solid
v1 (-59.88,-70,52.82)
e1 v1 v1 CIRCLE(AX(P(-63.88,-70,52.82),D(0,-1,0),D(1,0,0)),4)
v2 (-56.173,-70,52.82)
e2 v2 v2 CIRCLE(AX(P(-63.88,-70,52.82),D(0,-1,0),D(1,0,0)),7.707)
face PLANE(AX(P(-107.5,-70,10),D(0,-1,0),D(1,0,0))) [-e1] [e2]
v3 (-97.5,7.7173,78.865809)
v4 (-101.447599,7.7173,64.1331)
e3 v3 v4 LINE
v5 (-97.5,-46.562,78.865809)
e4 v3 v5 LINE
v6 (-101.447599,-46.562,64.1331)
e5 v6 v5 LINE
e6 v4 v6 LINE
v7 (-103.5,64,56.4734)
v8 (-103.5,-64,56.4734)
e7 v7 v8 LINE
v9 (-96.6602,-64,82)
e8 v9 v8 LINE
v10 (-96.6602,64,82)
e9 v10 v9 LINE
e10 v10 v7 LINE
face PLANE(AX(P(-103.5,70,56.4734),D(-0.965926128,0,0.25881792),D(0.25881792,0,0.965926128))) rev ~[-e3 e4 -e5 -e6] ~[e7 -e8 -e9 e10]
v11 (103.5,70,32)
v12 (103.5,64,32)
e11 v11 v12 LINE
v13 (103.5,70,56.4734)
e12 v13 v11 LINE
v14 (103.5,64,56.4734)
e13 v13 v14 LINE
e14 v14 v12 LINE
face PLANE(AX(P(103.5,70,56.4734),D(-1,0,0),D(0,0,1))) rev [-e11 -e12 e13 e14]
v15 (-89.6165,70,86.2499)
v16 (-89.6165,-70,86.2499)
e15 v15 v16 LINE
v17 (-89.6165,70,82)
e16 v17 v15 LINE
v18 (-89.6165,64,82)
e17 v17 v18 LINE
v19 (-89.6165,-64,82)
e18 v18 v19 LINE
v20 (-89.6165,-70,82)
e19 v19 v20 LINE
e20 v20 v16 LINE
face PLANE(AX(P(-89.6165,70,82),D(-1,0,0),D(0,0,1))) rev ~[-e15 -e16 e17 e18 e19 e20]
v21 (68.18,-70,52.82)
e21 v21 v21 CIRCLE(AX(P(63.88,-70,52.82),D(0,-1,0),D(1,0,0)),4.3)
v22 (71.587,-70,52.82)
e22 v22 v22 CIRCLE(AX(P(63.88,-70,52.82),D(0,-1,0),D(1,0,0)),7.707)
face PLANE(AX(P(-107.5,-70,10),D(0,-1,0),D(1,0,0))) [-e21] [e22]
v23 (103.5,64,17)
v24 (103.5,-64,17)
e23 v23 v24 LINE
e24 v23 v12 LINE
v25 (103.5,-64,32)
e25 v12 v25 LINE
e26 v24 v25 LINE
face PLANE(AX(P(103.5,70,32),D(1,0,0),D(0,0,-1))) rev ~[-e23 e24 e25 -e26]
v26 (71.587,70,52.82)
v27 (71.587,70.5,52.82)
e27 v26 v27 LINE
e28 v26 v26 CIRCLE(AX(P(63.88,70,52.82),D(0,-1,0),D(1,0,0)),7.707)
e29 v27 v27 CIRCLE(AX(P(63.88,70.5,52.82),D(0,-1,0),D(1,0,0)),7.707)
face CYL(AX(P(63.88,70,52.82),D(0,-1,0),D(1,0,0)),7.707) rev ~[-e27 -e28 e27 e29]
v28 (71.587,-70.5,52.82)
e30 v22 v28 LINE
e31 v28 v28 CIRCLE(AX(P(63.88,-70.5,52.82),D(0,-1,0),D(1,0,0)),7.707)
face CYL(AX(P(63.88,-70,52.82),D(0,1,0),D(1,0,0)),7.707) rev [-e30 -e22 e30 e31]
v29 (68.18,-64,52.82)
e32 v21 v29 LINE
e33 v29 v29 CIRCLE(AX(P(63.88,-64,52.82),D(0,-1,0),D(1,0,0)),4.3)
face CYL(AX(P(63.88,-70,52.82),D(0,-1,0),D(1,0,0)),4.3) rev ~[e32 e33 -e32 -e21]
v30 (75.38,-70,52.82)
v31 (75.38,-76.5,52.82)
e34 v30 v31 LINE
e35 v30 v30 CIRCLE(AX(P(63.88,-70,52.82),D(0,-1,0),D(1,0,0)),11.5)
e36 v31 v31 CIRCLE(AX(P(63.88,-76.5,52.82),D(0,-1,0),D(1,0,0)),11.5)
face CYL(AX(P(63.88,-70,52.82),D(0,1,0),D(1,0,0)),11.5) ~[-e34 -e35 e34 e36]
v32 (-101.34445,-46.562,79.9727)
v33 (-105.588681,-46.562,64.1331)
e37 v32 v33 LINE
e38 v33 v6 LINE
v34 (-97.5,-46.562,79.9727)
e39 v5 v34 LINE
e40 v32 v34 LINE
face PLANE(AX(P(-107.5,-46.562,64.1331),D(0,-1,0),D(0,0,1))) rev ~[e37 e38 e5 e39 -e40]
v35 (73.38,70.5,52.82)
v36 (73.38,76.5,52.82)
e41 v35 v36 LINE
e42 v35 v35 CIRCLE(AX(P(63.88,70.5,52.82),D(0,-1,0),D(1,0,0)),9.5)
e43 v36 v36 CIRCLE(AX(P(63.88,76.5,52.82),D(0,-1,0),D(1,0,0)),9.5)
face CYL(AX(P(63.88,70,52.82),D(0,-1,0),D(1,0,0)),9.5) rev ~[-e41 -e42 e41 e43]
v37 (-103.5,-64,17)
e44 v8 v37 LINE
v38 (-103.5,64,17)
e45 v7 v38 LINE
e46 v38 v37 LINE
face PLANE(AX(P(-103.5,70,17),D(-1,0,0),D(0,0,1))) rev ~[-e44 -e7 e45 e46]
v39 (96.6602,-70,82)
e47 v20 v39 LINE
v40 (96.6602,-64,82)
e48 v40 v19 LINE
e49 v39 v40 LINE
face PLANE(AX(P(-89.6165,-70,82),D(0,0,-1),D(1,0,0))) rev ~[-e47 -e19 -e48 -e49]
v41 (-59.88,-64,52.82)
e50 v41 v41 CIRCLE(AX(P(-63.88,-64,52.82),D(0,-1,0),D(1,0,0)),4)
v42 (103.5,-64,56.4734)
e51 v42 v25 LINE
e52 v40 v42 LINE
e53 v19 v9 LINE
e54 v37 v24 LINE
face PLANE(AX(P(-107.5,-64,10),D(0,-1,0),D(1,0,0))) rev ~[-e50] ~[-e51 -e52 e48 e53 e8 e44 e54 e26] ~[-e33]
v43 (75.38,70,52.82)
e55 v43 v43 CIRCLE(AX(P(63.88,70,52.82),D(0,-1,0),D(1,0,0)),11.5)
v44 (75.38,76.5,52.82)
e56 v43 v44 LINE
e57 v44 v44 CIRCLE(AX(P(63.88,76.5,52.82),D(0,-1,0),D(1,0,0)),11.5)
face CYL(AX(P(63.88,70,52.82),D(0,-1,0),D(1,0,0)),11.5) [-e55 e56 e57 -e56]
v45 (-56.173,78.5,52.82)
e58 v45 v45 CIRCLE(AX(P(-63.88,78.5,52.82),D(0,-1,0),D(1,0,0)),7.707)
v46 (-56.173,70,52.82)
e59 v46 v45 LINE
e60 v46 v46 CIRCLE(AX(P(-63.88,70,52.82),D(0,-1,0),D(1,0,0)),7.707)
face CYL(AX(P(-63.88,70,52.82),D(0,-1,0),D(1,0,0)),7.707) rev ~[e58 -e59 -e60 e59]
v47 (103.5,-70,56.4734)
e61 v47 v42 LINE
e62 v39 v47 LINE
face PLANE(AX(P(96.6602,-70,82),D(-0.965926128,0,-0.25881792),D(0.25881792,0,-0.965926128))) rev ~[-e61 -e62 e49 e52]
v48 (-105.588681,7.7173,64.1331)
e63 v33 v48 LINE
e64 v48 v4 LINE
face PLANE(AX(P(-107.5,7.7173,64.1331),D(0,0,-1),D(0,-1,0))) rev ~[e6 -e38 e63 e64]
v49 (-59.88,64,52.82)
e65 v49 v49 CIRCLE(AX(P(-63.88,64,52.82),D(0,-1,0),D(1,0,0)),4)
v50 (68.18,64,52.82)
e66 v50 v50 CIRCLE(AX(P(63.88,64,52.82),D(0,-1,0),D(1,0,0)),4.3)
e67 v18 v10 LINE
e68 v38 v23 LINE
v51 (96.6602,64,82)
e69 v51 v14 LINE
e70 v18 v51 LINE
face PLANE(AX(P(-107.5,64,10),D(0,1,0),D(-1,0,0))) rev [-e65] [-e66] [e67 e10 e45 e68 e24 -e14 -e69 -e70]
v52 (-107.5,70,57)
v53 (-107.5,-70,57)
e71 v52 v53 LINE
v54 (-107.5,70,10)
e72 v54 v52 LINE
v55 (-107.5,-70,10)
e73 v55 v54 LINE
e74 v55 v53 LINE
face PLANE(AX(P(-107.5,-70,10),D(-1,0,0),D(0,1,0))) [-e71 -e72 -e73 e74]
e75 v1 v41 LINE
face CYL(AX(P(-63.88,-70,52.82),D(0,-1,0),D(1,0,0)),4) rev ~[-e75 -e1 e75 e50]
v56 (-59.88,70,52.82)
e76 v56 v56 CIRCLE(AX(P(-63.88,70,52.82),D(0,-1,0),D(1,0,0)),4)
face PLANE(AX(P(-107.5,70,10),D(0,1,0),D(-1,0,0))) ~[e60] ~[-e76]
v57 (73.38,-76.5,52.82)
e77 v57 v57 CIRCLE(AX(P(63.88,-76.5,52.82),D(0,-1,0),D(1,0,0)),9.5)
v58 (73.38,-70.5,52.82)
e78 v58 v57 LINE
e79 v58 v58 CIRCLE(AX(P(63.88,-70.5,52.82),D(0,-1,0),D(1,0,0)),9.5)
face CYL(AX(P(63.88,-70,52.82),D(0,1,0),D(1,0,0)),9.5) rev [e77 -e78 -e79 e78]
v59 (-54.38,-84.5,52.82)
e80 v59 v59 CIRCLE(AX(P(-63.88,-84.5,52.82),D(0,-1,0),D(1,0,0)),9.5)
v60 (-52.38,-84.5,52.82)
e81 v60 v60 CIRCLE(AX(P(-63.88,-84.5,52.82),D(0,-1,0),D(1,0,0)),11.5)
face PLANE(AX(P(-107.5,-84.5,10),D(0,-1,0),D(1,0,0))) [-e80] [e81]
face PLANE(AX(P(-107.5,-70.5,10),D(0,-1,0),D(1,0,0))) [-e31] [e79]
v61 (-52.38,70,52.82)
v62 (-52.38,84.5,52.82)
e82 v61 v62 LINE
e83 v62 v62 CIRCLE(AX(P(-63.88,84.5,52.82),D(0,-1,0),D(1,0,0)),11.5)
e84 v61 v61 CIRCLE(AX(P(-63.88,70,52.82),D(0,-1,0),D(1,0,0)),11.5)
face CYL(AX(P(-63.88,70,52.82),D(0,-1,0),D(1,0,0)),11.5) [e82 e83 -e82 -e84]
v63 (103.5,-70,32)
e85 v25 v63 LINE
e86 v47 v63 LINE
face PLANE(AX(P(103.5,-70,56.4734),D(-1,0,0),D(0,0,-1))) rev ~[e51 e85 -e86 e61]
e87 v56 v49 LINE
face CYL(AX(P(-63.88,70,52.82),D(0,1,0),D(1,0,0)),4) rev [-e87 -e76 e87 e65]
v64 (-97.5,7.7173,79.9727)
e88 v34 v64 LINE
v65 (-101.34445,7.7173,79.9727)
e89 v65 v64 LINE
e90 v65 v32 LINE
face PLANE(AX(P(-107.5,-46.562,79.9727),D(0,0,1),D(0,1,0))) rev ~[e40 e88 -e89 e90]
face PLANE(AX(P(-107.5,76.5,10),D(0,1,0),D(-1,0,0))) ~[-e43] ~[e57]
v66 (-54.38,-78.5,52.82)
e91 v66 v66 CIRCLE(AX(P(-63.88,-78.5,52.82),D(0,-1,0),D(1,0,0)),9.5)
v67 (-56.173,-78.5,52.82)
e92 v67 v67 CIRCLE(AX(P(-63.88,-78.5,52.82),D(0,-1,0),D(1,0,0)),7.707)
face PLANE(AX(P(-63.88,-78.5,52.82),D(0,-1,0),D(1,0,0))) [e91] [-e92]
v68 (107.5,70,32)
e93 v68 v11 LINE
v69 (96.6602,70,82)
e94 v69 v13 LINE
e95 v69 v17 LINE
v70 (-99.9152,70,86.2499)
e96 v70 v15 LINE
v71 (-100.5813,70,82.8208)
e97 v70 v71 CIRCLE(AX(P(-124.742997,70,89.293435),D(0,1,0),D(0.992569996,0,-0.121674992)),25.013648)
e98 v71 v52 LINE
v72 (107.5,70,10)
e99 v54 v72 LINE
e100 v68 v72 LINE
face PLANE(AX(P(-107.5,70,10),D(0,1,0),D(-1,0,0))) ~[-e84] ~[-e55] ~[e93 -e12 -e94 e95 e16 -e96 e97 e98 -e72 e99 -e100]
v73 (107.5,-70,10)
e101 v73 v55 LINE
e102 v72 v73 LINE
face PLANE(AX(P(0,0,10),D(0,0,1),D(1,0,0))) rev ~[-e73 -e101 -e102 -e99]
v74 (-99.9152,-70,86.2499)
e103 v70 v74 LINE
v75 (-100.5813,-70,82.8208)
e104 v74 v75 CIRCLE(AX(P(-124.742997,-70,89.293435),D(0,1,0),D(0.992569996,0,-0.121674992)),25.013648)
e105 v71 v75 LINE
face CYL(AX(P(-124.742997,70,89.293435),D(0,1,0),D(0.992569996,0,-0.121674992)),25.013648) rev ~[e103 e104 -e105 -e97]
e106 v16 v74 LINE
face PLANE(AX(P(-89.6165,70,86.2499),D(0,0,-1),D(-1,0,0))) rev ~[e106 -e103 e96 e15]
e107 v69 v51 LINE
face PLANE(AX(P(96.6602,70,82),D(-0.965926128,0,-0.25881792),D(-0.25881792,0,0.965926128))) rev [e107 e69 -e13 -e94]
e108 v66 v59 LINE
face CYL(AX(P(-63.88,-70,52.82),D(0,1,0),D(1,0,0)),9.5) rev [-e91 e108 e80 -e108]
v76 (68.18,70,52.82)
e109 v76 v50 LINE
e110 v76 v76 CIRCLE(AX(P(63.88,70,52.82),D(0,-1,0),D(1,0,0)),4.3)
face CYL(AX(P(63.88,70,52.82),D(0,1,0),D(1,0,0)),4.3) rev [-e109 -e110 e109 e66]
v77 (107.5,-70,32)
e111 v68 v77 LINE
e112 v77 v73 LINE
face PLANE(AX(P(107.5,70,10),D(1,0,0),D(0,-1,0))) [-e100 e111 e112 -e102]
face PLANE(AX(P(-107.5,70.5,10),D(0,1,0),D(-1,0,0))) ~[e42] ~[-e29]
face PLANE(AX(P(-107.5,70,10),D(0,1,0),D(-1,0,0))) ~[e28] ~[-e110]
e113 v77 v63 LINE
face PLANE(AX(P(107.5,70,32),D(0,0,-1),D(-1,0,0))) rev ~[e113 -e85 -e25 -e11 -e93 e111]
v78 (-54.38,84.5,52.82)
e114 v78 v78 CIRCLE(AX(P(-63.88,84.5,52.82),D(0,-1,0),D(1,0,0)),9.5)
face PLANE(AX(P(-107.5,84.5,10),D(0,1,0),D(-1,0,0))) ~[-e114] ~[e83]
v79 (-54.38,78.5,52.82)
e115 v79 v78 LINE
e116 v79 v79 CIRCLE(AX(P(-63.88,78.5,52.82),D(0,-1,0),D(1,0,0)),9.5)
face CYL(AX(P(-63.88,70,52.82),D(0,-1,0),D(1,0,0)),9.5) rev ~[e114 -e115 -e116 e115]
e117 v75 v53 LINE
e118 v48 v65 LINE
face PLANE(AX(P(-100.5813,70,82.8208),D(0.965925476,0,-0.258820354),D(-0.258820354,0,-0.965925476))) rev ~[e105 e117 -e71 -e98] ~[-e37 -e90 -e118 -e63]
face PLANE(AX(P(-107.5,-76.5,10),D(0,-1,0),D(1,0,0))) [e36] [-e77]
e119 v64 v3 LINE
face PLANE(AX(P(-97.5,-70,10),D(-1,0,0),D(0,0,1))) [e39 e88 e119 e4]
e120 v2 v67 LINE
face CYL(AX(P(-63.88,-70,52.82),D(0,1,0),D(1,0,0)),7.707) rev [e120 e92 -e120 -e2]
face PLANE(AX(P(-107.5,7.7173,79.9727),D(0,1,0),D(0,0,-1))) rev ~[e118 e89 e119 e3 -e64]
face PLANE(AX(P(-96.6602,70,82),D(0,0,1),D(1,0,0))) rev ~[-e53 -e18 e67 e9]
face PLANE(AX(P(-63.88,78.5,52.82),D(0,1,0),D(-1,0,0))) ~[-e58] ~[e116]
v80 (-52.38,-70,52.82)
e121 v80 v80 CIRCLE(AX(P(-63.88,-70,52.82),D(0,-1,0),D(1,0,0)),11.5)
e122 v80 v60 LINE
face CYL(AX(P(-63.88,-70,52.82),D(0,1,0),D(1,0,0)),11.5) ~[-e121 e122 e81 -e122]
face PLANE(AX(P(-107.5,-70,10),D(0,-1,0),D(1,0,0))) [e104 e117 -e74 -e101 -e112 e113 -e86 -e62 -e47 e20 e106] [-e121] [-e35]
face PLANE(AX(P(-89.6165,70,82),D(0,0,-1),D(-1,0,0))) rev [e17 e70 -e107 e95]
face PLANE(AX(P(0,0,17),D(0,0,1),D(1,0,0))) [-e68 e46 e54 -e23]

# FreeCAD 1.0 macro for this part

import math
import FreeCAD as App
import Part
import Sketcher

V = App.Vector
Q = App.Units.Quantity


def add_polygon(sketch, points):
    """Adds a closed chain of lines whose ends are joined by coincident constraints."""
    first, n = sketch.GeometryCount, len(points)
    for a, b in zip(points, points[1:] + points[:1]):
        sketch.addGeometry(Part.LineSegment(App.Vector(*a, 0), App.Vector(*b, 0)), False)
    for i in range(n):
        sketch.addConstraint(Sketcher.Constraint("Coincident", first + i, 2, first + (i + 1) % n, 1))

doc = App.newDocument("Part")
body = doc.addObject("PartDesign::Body", "Body")

sketch1 = doc.addObject("Sketcher::SketchObject", "Sketch")
body.addObject(sketch1)
sketch1.AttachmentSupport = (doc.XY_Plane, [""])
sketch1.MapMode = "FlatFace"
sketch1.AttachmentOffset = App.Placement(V(0, 0, 10), App.Rotation())
add_polygon(sketch1, [(107.5, 70), (-107.5, 70), (-107.5, -70), (107.5, -70)])
sketch1.addConstraint(Sketcher.Constraint("Horizontal", 0))
sketch1.addConstraint(Sketcher.Constraint("Vertical", 1))
sketch1.addConstraint(Sketcher.Constraint("Horizontal", 2))
sketch1.addConstraint(Sketcher.Constraint("Vertical", 3))
sketch1.addConstraint(Sketcher.Constraint("Symmetric", 0, 2, 2, 2, -1, 1))
sketch1.addConstraint(Sketcher.Constraint("DistanceX", 0, 2, 0, 1, Q("215 mm")))
sketch1.addConstraint(Sketcher.Constraint("DistanceY", 1, 2, 1, 1, Q("140 mm")))
pad1 = doc.addObject("PartDesign::Pad", "Pad")
body.addObject(pad1)
pad1.Profile = sketch1
pad1.Length = 7

sketch2 = doc.addObject("Sketcher::SketchObject", "Sketch001")
body.addObject(sketch2)
sketch2.AttachmentSupport = (doc.XZ_Plane, [""])
sketch2.MapMode = "FlatFace"
sketch2.AttachmentOffset = App.Placement(V(0, 0, -70), App.Rotation())
add_polygon(sketch2, [(107.5, 32), (107.5, 17), (103.5, 17), (103.5, 32)])
sketch2.addGeometry(Part.LineSegment(V(-103.5, 17, 0), V(-107.5, 17, 0)), False)
sketch2.addGeometry(Part.LineSegment(V(-107.5, 17, 0), V(-107.5, 57, 0)), False)
sketch2.addGeometry(Part.LineSegment(V(-107.5, 57, 0), V(-100.5813, 82.8208, 0)), False)
sketch2.addGeometry(Part.ArcOfCircle(Part.Circle(V(-124.742997, 89.293435, 0), V(0, 0, 1), 25.013648), math.radians(-14.996744), math.radians(-6.988781)), False)
sketch2.addGeometry(Part.LineSegment(V(-99.9152, 86.2499, 0), V(-89.6165, 86.2499, 0)), False)
sketch2.addGeometry(Part.LineSegment(V(-89.6165, 86.2499, 0), V(-89.6165, 82, 0)), False)
sketch2.addGeometry(Part.LineSegment(V(-89.6165, 82, 0), V(-96.6602, 82, 0)), False)
sketch2.addGeometry(Part.LineSegment(V(-96.6602, 82, 0), V(-103.5, 56.4734, 0)), False)
sketch2.addGeometry(Part.LineSegment(V(-103.5, 56.4734, 0), V(-103.5, 17, 0)), False)
sketch2.addConstraint(Sketcher.Constraint("Coincident", 4, 2, 5, 1))
sketch2.addConstraint(Sketcher.Constraint("Coincident", 5, 2, 6, 1))
sketch2.addConstraint(Sketcher.Constraint("Tangent", 6, 2, 7, 1))
sketch2.addConstraint(Sketcher.Constraint("Coincident", 7, 2, 8, 1))
sketch2.addConstraint(Sketcher.Constraint("Coincident", 8, 2, 9, 1))
sketch2.addConstraint(Sketcher.Constraint("Coincident", 9, 2, 10, 1))
sketch2.addConstraint(Sketcher.Constraint("Coincident", 10, 2, 11, 1))
sketch2.addConstraint(Sketcher.Constraint("Coincident", 11, 2, 12, 1))
sketch2.addConstraint(Sketcher.Constraint("Coincident", 12, 2, 4, 1))
sketch2.addConstraint(Sketcher.Constraint("Vertical", 0))
sketch2.addConstraint(Sketcher.Constraint("Horizontal", 1))
sketch2.addConstraint(Sketcher.Constraint("Vertical", 2))
sketch2.addConstraint(Sketcher.Constraint("Horizontal", 3))
sketch2.addConstraint(Sketcher.Constraint("Horizontal", 4))
sketch2.addConstraint(Sketcher.Constraint("Vertical", 5))
sketch2.addConstraint(Sketcher.Constraint("Horizontal", 8))
sketch2.addConstraint(Sketcher.Constraint("Vertical", 9))
sketch2.addConstraint(Sketcher.Constraint("Horizontal", 10))
sketch2.addConstraint(Sketcher.Constraint("Vertical", 12))
sketch2.addConstraint(Sketcher.Constraint("Symmetric", 0, 2, 4, 2, -2))
sketch2.addConstraint(Sketcher.Constraint("Parallel", 6, 11))
sketch2.addConstraint(Sketcher.Constraint("Equal", 3, 4))
sketch2.addConstraint(Sketcher.Constraint("DistanceX", 1, 2, 1, 1, Q("4 mm")))
sketch2.addConstraint(Sketcher.Constraint("DistanceY", 0, 2, 0, 1, Q("15 mm")))
sketch2.addConstraint(Sketcher.Constraint("DistanceY", 5, 1, 5, 2, Q("40 mm")))
sketch2.addConstraint(Sketcher.Constraint("Angle", 6, Q("75 deg")))
sketch2.addConstraint(Sketcher.Constraint("DistanceY", -1, 1, 0, 2, Q("17 mm")))
sketch2.addConstraint(Sketcher.Constraint("DistanceY", -1, 1, 9, 2, Q("82 mm")))
sketch2.addConstraint(Sketcher.Constraint("DistanceX", 4, 2, 1, 2, Q("211 mm")))
sketch2.addConstraint(Sketcher.Constraint("DistanceY", 9, 2, 9, 1, Q("4.25 mm")))
sketch2.addConstraint(Sketcher.Constraint("Radius", 7, Q("25.0136 mm")))
sketch2.addConstraint(Sketcher.Constraint("Distance", 11, Q("26.427 mm")))
sketch2.addConstraint(Sketcher.Constraint("DistanceX", 8, 1, 8, 2, Q("10.2987 mm")))
sketch2.addConstraint(Sketcher.Constraint("DistanceX", 10, 2, 10, 1, Q("7.0437 mm")))
pad2 = doc.addObject("PartDesign::Pad", "Pad001")
body.addObject(pad2)
pad2.Profile = sketch2
pad2.Length = 140

sketch3 = doc.addObject("Sketcher::SketchObject", "Sketch002")
body.addObject(sketch3)
sketch3.AttachmentSupport = (doc.XZ_Plane, [""])
sketch3.MapMode = "FlatFace"
sketch3.AttachmentOffset = App.Placement(V(0, 0, 70), App.Rotation())
add_polygon(sketch3, [(103.5, 17), (103.5, 56.4734), (96.6602, 82), (-96.6602, 82), (-103.5, 56.4734), (-103.5, 17)])
sketch3.addGeometry(Part.Circle(V(-63.88, 52.82, 0), V(0, 0, 1), 4), False)
sketch3.addGeometry(Part.Circle(V(63.88, 52.82, 0), V(0, 0, 1), 4.3), False)
sketch3.addConstraint(Sketcher.Constraint("Vertical", 0))
sketch3.addConstraint(Sketcher.Constraint("Horizontal", 2))
sketch3.addConstraint(Sketcher.Constraint("Vertical", 4))
sketch3.addConstraint(Sketcher.Constraint("Horizontal", 5))
sketch3.addConstraint(Sketcher.Constraint("Symmetric", 6, 3, 7, 3, -2))
sketch3.addConstraint(Sketcher.Constraint("Symmetric", 0, 2, 3, 2, -2))
sketch3.addConstraint(Sketcher.Constraint("Equal", 1, 3))
sketch3.addConstraint(Sketcher.Constraint("Diameter", 6, Q("8 mm")))
sketch3.addConstraint(Sketcher.Constraint("Diameter", 7, Q("8.6 mm")))
sketch3.addConstraint(Sketcher.Constraint("DistanceX", 5, 1, 5, 2, Q("207 mm")))
sketch3.addConstraint(Sketcher.Constraint("Angle", 1, Q("105 deg")))
sketch3.addConstraint(Sketcher.Constraint("DistanceY", -1, 1, 1, 2, Q("82 mm")))
sketch3.addConstraint(Sketcher.Constraint("DistanceY", -1, 1, 4, 2, Q("17 mm")))
sketch3.addConstraint(Sketcher.Constraint("DistanceX", 6, 3, -1, 1, Q("63.88 mm")))
sketch3.addConstraint(Sketcher.Constraint("DistanceY", -1, 1, 6, 3, Q("52.82 mm")))
sketch3.addConstraint(Sketcher.Constraint("Distance", 1, Q("26.427 mm")))
pad3 = doc.addObject("PartDesign::Pad", "Pad002")
body.addObject(pad3)
pad3.Profile = sketch3
pad3.Length = 6
pad3.Reversed = True

sketch4 = doc.addObject("Sketcher::SketchObject", "Sketch003")
body.addObject(sketch4)
sketch4.AttachmentSupport = (doc.XZ_Plane, [""])
sketch4.MapMode = "FlatFace"
sketch4.AttachmentOffset = App.Placement(V(0, 0, 70), App.Rotation())
sketch4.addGeometry(Part.Circle(V(-63.88, 52.82, 0), V(0, 0, 1), 11.5), False)
sketch4.addGeometry(Part.Circle(V(-63.88, 52.82, 0), V(0, 0, 1), 9.5), False)
sketch4.addConstraint(Sketcher.Constraint("Coincident", 1, 3, 0, 3))
sketch4.addConstraint(Sketcher.Constraint("Diameter", 0, Q("23 mm")))
sketch4.addConstraint(Sketcher.Constraint("Diameter", 1, Q("19 mm")))
sketch4.addConstraint(Sketcher.Constraint("DistanceX", 0, 3, -1, 1, Q("63.88 mm")))
sketch4.addConstraint(Sketcher.Constraint("DistanceY", -1, 1, 0, 3, Q("52.82 mm")))
pad4 = doc.addObject("PartDesign::Pad", "Pad003")
body.addObject(pad4)
pad4.Profile = sketch4
pad4.Length = 14.5

sketch5 = doc.addObject("Sketcher::SketchObject", "Sketch004")
body.addObject(sketch5)
sketch5.AttachmentSupport = (doc.XZ_Plane, [""])
sketch5.MapMode = "FlatFace"
sketch5.AttachmentOffset = App.Placement(V(0, 0, 70), App.Rotation())
sketch5.addGeometry(Part.Circle(V(-63.88, 52.82, 0), V(0, 0, 1), 9.5), False)
sketch5.addGeometry(Part.Circle(V(-63.88, 52.82, 0), V(0, 0, 1), 7.707), False)
sketch5.addConstraint(Sketcher.Constraint("Coincident", 1, 3, 0, 3))
sketch5.addConstraint(Sketcher.Constraint("Diameter", 0, Q("19 mm")))
sketch5.addConstraint(Sketcher.Constraint("Diameter", 1, Q("15.414 mm")))
sketch5.addConstraint(Sketcher.Constraint("DistanceX", 0, 3, -1, 1, Q("63.88 mm")))
sketch5.addConstraint(Sketcher.Constraint("DistanceY", -1, 1, 0, 3, Q("52.82 mm")))
pad5 = doc.addObject("PartDesign::Pad", "Pad004")
body.addObject(pad5)
pad5.Profile = sketch5
pad5.Length = 8.5

sketch6 = doc.addObject("Sketcher::SketchObject", "Sketch005")
body.addObject(sketch6)
sketch6.AttachmentSupport = (doc.XZ_Plane, [""])
sketch6.MapMode = "FlatFace"
sketch6.AttachmentOffset = App.Placement(V(0, 0, 70), App.Rotation())
sketch6.addGeometry(Part.Circle(V(63.88, 52.82, 0), V(0, 0, 1), 9.5), False)
sketch6.addGeometry(Part.Circle(V(63.88, 52.82, 0), V(0, 0, 1), 7.707), False)
sketch6.addConstraint(Sketcher.Constraint("Coincident", 1, 3, 0, 3))
sketch6.addConstraint(Sketcher.Constraint("Diameter", 0, Q("19 mm")))
sketch6.addConstraint(Sketcher.Constraint("Diameter", 1, Q("15.414 mm")))
sketch6.addConstraint(Sketcher.Constraint("DistanceX", -1, 1, 0, 3, Q("63.88 mm")))
sketch6.addConstraint(Sketcher.Constraint("DistanceY", -1, 1, 0, 3, Q("52.82 mm")))
pad6 = doc.addObject("PartDesign::Pad", "Pad005")
body.addObject(pad6)
pad6.Profile = sketch6
pad6.Length = 0.5

sketch7 = doc.addObject("Sketcher::SketchObject", "Sketch006")
body.addObject(sketch7)
sketch7.AttachmentSupport = (doc.XZ_Plane, [""])
sketch7.MapMode = "FlatFace"
sketch7.AttachmentOffset = App.Placement(V(0, 0, 70), App.Rotation())
sketch7.addGeometry(Part.Circle(V(63.88, 52.82, 0), V(0, 0, 1), 11.5), False)
sketch7.addGeometry(Part.Circle(V(63.88, 52.82, 0), V(0, 0, 1), 9.5), False)
sketch7.addConstraint(Sketcher.Constraint("Coincident", 1, 3, 0, 3))
sketch7.addConstraint(Sketcher.Constraint("Diameter", 0, Q("23 mm")))
sketch7.addConstraint(Sketcher.Constraint("Diameter", 1, Q("19 mm")))
sketch7.addConstraint(Sketcher.Constraint("DistanceX", -1, 1, 0, 3, Q("63.88 mm")))
sketch7.addConstraint(Sketcher.Constraint("DistanceY", -1, 1, 0, 3, Q("52.82 mm")))
pad7 = doc.addObject("PartDesign::Pad", "Pad006")
body.addObject(pad7)
pad7.Profile = sketch7
pad7.Length = 6.5
doc.recompute()

mirrored = doc.addObject("PartDesign::Mirrored", "Mirrored")
body.addObject(mirrored)
mirrored.Originals = [pad3, pad4, pad5, pad6, pad7]
mirrored.MirrorPlane = (doc.XZ_Plane, [""])
body.Tip = mirrored

sketch8 = doc.addObject("Sketcher::SketchObject", "Sketch007")
body.addObject(sketch8)
sketch8.AttachmentSupport = (doc.YZ_Plane, [""])
sketch8.MapMode = "FlatFace"
sketch8.AttachmentOffset = App.Placement(V(0, 0, -107.5), App.Rotation())
add_polygon(sketch8, [(-46.562, 79.9727), (7.7173, 79.9727), (7.7173, 64.1331), (-46.562, 64.1331)])
sketch8.addConstraint(Sketcher.Constraint("Horizontal", 0))
sketch8.addConstraint(Sketcher.Constraint("Vertical", 1))
sketch8.addConstraint(Sketcher.Constraint("Horizontal", 2))
sketch8.addConstraint(Sketcher.Constraint("Vertical", 3))
sketch8.addConstraint(Sketcher.Constraint("DistanceX", 0, 1, 0, 2, Q("54.2793 mm")))
sketch8.addConstraint(Sketcher.Constraint("DistanceY", 1, 2, 1, 1, Q("15.8396 mm")))
sketch8.addConstraint(Sketcher.Constraint("DistanceY", -1, 1, 1, 2, Q("64.133 mm")))
sketch8.addConstraint(Sketcher.Constraint("DistanceX", 2, 2, -1, 1, Q("46.562 mm")))
pocket1 = doc.addObject("PartDesign::Pocket", "Pocket")
body.addObject(pocket1)
pocket1.Profile = sketch8
pocket1.Length = 10
pocket1.Reversed = True

doc.recompute()
